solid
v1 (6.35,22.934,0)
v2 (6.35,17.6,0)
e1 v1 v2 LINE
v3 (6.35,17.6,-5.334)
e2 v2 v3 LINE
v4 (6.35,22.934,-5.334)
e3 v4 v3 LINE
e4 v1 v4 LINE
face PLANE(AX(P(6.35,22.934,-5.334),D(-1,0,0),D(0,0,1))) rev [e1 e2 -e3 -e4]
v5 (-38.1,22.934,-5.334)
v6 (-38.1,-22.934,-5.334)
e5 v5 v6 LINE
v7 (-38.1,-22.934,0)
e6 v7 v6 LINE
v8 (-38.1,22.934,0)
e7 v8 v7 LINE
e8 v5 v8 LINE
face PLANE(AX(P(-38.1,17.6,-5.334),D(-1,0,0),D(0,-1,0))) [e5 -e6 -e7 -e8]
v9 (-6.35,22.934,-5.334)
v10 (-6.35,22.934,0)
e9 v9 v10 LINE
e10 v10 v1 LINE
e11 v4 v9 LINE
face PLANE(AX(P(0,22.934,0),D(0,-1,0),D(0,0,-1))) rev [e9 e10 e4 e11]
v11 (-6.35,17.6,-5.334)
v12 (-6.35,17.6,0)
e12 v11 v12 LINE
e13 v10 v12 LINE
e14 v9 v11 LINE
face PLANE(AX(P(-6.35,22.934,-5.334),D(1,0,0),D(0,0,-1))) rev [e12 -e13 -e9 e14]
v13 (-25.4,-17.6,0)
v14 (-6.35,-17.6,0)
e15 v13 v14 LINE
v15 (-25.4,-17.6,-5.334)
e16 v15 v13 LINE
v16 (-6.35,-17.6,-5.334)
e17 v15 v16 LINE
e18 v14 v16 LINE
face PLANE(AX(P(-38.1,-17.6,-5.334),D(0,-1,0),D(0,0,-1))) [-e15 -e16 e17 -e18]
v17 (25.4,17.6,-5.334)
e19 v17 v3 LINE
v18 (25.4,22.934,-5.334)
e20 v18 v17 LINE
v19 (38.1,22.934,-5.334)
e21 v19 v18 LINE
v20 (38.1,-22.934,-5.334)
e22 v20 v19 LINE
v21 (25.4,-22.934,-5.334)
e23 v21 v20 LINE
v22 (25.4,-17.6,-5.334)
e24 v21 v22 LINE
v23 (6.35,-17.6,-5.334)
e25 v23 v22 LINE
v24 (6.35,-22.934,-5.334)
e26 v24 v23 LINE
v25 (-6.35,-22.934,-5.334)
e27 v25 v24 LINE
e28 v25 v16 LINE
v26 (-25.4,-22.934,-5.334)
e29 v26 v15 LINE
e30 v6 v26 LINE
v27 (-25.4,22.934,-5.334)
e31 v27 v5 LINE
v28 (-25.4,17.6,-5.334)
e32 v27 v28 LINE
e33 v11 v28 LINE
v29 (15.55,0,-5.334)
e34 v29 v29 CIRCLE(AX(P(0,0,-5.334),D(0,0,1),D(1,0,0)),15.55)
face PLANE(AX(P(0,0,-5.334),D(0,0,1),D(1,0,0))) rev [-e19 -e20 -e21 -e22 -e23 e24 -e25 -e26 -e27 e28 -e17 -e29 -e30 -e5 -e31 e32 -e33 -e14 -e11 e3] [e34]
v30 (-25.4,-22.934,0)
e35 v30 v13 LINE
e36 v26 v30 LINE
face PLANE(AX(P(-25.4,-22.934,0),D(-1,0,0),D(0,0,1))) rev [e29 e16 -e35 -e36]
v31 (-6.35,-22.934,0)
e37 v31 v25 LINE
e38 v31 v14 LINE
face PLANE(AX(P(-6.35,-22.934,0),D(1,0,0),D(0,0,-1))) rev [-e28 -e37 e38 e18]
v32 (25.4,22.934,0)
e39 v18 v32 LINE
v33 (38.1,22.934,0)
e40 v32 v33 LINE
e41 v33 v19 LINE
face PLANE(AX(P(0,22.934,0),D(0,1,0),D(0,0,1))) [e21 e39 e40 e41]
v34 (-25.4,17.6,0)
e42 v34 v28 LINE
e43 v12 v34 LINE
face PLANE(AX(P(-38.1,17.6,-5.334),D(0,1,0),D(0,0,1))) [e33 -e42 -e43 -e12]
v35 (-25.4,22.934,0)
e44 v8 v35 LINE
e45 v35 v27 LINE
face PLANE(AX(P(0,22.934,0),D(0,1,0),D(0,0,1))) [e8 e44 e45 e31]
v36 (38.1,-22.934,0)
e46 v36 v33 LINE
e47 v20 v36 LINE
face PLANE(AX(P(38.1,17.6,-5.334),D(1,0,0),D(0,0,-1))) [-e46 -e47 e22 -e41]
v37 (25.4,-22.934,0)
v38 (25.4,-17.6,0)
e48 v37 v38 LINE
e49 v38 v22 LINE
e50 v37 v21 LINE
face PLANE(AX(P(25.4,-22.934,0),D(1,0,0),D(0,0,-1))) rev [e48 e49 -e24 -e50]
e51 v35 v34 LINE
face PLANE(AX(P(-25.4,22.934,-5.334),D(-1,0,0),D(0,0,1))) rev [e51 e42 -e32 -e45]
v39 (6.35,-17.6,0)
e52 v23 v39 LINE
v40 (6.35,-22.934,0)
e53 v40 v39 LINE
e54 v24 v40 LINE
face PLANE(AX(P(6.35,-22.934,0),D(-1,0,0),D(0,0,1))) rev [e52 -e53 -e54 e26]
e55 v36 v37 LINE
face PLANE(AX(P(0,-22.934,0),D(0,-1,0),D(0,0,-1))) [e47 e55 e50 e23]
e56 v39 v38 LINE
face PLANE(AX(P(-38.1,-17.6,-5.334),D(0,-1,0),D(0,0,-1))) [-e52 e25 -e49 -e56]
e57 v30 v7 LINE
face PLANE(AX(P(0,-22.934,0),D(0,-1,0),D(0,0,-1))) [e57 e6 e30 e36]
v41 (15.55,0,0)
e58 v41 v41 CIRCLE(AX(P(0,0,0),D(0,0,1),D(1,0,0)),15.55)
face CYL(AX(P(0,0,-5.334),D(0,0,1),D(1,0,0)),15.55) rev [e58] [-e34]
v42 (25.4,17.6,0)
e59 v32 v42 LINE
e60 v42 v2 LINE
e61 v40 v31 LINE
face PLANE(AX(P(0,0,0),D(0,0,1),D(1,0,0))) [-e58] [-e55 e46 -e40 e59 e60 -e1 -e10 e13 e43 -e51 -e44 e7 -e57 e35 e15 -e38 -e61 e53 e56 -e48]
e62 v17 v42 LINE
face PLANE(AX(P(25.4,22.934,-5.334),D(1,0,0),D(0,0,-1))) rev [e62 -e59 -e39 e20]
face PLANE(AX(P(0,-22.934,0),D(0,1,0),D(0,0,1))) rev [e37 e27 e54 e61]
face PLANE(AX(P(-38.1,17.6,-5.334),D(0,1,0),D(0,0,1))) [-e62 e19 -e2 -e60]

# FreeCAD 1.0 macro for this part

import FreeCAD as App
import Part
import Sketcher
Q = App.Units.Quantity


def add_polygon(sketch, points):
    """Adds a closed chain of lines whose ends are joined by coincident constraints."""
    first, n = sketch.GeometryCount, len(points)
    for a, b in zip(points, points[1:] + points[:1]):
        sketch.addGeometry(Part.LineSegment(App.Vector(*a, 0), App.Vector(*b, 0)), False)
    for i in range(n):
        sketch.addConstraint(Sketcher.Constraint("Coincident", first + i, 2, first + (i + 1) % n, 1))

doc = App.newDocument("Part")
body = doc.addObject("PartDesign::Body", "Body")

sketch1 = body.newObject("Sketcher::SketchObject", "Sketch")
sketch1.AttachmentSupport = (doc.getObject("XY_Plane"), [""])
sketch1.MapMode = "FlatFace"
add_polygon(sketch1, [(-38.1, 17.6), (-38.1, -17.6), (38.1, -17.6), (38.1, 17.6)])
sketch1.addConstraint([
    Sketcher.Constraint("Vertical", 0),
    Sketcher.Constraint("Horizontal", 1),
    Sketcher.Constraint("Vertical", 2),
    Sketcher.Constraint("Horizontal", 3),
    Sketcher.Constraint("Symmetric", 0, 2, 2, 2, -1, 1),
    Sketcher.Constraint("DistanceX", 1, 1, 1, 2, Q("3 in")),
    Sketcher.Constraint("DistanceY", 0, 2, 0, 1, 35.2),
])
pad1 = body.newObject("PartDesign::Pad", "Pad")
pad1.Profile = sketch1
pad1.Length = Q("0.21 in")
pad1.Reversed = True

sketch2 = body.newObject("Sketcher::SketchObject", "Sketch001")
sketch2.AttachmentSupport = (doc.getObject("XY_Plane"), [""])
sketch2.MapMode = "FlatFace"
sketch2.addGeometry(Part.Circle(App.Vector(0, 0, 0), App.Vector(0, 0, 1), 15.55), False)
sketch2.addConstraint([
    Sketcher.Constraint("Coincident", 0, 3, -1, 1),
    Sketcher.Constraint("Diameter", 0, 31.1),
])
pocket1 = body.newObject("PartDesign::Pocket", "Pocket")
pocket1.Profile = sketch2
pocket1.Type = "ThroughAll"

sketch3 = body.newObject("Sketcher::SketchObject", "Sketch002")
sketch3.AttachmentSupport = (doc.getObject("XZ_Plane"), [""])
sketch3.MapMode = "FlatFace"
sketch3.AttachmentOffset = App.Placement(App.Vector(0, 0, -17.6), App.Rotation())
add_polygon(sketch3, [(-38.1, -5.334), (-38.1, 0), (-25.4, 0), (-25.4, -5.334)])
add_polygon(sketch3, [(-6.35, -5.334), (-6.35, 0), (6.35, 0), (6.35, -5.334)])
add_polygon(sketch3, [(25.4, -5.334), (25.4, 0), (38.1, 0), (38.1, -5.334)])
sketch3.addConstraint([
    Sketcher.Constraint("Vertical", 0),
    Sketcher.Constraint("Horizontal", 1),
    Sketcher.Constraint("Vertical", 2),
    Sketcher.Constraint("Horizontal", 3),
    Sketcher.Constraint("Vertical", 4),
    Sketcher.Constraint("Horizontal", 5),
    Sketcher.Constraint("Vertical", 6),
    Sketcher.Constraint("Horizontal", 7),
    Sketcher.Constraint("Vertical", 8),
    Sketcher.Constraint("Horizontal", 9),
    Sketcher.Constraint("Vertical", 10),
    Sketcher.Constraint("Horizontal", 11),
    Sketcher.Constraint("Symmetric", 4, 2, 5, 2, -1, 1),
    Sketcher.Constraint("Symmetric", 1, 2, 8, 2, -1, 1),
    Sketcher.Constraint("Symmetric", 0, 2, 9, 2, -2),
    Sketcher.Constraint("Horizontal", 3, 2, 6, 2),
    Sketcher.Constraint("Horizontal", 7, 2, 10, 2),
    Sketcher.Constraint("Equal", 3, 5),
    Sketcher.Constraint("DistanceX", 1, 1, 1, 2, Q("0.5 in")),
    Sketcher.Constraint("DistanceX", 1, 2, -1, 1, Q("1 in")),
    Sketcher.Constraint("DistanceY", 0, 1, 0, 2, Q("0.21 in")),
])
pad2 = body.newObject("PartDesign::Pad", "Pad001")
pad2.Profile = sketch3
pad2.Length = Q("0.21 in")
pad2.Reversed = True

sketch4 = body.newObject("Sketcher::SketchObject", "Sketch003")
sketch4.AttachmentSupport = (doc.getObject("XZ_Plane"), [""])
sketch4.MapMode = "FlatFace"
sketch4.AttachmentOffset = App.Placement(App.Vector(0, 0, 17.6), App.Rotation())
add_polygon(sketch4, [(-38.1, 0), (-38.1, -5.334), (-25.4, -5.334), (-25.4, 0)])
add_polygon(sketch4, [(-6.35, 0), (-6.35, -5.334), (6.35, -5.334), (6.35, 0)])
add_polygon(sketch4, [(25.4, 0), (25.4, -5.334), (38.1, -5.334), (38.1, 0)])
sketch4.addConstraint([
    Sketcher.Constraint("Vertical", 0),
    Sketcher.Constraint("Horizontal", 1),
    Sketcher.Constraint("Vertical", 2),
    Sketcher.Constraint("Horizontal", 3),
    Sketcher.Constraint("Vertical", 4),
    Sketcher.Constraint("Horizontal", 5),
    Sketcher.Constraint("Vertical", 6),
    Sketcher.Constraint("Horizontal", 7),
    Sketcher.Constraint("Vertical", 8),
    Sketcher.Constraint("Horizontal", 9),
    Sketcher.Constraint("Vertical", 10),
    Sketcher.Constraint("Horizontal", 11),
    Sketcher.Constraint("Symmetric", 6, 2, 7, 2, -1, 1),
    Sketcher.Constraint("Symmetric", 3, 2, 10, 2, -1, 1),
    Sketcher.Constraint("Symmetric", 1, 2, 8, 2, -2),
    Sketcher.Constraint("PointOnObject", 2, 2, -1),
    Sketcher.Constraint("Horizontal", 1, 2, 4, 2),
    Sketcher.Constraint("Equal", 3, 5),
    Sketcher.Constraint("DistanceX", 1, 1, 1, 2, Q("0.5 in")),
    Sketcher.Constraint("DistanceX", 1, 2, -1, 1, Q("1 in")),
    Sketcher.Constraint("DistanceY", 0, 2, 0, 1, Q("0.21 in")),
])
pad3 = body.newObject("PartDesign::Pad", "Pad002")
pad3.Profile = sketch4
pad3.Length = Q("0.21 in")

doc.recompute()
